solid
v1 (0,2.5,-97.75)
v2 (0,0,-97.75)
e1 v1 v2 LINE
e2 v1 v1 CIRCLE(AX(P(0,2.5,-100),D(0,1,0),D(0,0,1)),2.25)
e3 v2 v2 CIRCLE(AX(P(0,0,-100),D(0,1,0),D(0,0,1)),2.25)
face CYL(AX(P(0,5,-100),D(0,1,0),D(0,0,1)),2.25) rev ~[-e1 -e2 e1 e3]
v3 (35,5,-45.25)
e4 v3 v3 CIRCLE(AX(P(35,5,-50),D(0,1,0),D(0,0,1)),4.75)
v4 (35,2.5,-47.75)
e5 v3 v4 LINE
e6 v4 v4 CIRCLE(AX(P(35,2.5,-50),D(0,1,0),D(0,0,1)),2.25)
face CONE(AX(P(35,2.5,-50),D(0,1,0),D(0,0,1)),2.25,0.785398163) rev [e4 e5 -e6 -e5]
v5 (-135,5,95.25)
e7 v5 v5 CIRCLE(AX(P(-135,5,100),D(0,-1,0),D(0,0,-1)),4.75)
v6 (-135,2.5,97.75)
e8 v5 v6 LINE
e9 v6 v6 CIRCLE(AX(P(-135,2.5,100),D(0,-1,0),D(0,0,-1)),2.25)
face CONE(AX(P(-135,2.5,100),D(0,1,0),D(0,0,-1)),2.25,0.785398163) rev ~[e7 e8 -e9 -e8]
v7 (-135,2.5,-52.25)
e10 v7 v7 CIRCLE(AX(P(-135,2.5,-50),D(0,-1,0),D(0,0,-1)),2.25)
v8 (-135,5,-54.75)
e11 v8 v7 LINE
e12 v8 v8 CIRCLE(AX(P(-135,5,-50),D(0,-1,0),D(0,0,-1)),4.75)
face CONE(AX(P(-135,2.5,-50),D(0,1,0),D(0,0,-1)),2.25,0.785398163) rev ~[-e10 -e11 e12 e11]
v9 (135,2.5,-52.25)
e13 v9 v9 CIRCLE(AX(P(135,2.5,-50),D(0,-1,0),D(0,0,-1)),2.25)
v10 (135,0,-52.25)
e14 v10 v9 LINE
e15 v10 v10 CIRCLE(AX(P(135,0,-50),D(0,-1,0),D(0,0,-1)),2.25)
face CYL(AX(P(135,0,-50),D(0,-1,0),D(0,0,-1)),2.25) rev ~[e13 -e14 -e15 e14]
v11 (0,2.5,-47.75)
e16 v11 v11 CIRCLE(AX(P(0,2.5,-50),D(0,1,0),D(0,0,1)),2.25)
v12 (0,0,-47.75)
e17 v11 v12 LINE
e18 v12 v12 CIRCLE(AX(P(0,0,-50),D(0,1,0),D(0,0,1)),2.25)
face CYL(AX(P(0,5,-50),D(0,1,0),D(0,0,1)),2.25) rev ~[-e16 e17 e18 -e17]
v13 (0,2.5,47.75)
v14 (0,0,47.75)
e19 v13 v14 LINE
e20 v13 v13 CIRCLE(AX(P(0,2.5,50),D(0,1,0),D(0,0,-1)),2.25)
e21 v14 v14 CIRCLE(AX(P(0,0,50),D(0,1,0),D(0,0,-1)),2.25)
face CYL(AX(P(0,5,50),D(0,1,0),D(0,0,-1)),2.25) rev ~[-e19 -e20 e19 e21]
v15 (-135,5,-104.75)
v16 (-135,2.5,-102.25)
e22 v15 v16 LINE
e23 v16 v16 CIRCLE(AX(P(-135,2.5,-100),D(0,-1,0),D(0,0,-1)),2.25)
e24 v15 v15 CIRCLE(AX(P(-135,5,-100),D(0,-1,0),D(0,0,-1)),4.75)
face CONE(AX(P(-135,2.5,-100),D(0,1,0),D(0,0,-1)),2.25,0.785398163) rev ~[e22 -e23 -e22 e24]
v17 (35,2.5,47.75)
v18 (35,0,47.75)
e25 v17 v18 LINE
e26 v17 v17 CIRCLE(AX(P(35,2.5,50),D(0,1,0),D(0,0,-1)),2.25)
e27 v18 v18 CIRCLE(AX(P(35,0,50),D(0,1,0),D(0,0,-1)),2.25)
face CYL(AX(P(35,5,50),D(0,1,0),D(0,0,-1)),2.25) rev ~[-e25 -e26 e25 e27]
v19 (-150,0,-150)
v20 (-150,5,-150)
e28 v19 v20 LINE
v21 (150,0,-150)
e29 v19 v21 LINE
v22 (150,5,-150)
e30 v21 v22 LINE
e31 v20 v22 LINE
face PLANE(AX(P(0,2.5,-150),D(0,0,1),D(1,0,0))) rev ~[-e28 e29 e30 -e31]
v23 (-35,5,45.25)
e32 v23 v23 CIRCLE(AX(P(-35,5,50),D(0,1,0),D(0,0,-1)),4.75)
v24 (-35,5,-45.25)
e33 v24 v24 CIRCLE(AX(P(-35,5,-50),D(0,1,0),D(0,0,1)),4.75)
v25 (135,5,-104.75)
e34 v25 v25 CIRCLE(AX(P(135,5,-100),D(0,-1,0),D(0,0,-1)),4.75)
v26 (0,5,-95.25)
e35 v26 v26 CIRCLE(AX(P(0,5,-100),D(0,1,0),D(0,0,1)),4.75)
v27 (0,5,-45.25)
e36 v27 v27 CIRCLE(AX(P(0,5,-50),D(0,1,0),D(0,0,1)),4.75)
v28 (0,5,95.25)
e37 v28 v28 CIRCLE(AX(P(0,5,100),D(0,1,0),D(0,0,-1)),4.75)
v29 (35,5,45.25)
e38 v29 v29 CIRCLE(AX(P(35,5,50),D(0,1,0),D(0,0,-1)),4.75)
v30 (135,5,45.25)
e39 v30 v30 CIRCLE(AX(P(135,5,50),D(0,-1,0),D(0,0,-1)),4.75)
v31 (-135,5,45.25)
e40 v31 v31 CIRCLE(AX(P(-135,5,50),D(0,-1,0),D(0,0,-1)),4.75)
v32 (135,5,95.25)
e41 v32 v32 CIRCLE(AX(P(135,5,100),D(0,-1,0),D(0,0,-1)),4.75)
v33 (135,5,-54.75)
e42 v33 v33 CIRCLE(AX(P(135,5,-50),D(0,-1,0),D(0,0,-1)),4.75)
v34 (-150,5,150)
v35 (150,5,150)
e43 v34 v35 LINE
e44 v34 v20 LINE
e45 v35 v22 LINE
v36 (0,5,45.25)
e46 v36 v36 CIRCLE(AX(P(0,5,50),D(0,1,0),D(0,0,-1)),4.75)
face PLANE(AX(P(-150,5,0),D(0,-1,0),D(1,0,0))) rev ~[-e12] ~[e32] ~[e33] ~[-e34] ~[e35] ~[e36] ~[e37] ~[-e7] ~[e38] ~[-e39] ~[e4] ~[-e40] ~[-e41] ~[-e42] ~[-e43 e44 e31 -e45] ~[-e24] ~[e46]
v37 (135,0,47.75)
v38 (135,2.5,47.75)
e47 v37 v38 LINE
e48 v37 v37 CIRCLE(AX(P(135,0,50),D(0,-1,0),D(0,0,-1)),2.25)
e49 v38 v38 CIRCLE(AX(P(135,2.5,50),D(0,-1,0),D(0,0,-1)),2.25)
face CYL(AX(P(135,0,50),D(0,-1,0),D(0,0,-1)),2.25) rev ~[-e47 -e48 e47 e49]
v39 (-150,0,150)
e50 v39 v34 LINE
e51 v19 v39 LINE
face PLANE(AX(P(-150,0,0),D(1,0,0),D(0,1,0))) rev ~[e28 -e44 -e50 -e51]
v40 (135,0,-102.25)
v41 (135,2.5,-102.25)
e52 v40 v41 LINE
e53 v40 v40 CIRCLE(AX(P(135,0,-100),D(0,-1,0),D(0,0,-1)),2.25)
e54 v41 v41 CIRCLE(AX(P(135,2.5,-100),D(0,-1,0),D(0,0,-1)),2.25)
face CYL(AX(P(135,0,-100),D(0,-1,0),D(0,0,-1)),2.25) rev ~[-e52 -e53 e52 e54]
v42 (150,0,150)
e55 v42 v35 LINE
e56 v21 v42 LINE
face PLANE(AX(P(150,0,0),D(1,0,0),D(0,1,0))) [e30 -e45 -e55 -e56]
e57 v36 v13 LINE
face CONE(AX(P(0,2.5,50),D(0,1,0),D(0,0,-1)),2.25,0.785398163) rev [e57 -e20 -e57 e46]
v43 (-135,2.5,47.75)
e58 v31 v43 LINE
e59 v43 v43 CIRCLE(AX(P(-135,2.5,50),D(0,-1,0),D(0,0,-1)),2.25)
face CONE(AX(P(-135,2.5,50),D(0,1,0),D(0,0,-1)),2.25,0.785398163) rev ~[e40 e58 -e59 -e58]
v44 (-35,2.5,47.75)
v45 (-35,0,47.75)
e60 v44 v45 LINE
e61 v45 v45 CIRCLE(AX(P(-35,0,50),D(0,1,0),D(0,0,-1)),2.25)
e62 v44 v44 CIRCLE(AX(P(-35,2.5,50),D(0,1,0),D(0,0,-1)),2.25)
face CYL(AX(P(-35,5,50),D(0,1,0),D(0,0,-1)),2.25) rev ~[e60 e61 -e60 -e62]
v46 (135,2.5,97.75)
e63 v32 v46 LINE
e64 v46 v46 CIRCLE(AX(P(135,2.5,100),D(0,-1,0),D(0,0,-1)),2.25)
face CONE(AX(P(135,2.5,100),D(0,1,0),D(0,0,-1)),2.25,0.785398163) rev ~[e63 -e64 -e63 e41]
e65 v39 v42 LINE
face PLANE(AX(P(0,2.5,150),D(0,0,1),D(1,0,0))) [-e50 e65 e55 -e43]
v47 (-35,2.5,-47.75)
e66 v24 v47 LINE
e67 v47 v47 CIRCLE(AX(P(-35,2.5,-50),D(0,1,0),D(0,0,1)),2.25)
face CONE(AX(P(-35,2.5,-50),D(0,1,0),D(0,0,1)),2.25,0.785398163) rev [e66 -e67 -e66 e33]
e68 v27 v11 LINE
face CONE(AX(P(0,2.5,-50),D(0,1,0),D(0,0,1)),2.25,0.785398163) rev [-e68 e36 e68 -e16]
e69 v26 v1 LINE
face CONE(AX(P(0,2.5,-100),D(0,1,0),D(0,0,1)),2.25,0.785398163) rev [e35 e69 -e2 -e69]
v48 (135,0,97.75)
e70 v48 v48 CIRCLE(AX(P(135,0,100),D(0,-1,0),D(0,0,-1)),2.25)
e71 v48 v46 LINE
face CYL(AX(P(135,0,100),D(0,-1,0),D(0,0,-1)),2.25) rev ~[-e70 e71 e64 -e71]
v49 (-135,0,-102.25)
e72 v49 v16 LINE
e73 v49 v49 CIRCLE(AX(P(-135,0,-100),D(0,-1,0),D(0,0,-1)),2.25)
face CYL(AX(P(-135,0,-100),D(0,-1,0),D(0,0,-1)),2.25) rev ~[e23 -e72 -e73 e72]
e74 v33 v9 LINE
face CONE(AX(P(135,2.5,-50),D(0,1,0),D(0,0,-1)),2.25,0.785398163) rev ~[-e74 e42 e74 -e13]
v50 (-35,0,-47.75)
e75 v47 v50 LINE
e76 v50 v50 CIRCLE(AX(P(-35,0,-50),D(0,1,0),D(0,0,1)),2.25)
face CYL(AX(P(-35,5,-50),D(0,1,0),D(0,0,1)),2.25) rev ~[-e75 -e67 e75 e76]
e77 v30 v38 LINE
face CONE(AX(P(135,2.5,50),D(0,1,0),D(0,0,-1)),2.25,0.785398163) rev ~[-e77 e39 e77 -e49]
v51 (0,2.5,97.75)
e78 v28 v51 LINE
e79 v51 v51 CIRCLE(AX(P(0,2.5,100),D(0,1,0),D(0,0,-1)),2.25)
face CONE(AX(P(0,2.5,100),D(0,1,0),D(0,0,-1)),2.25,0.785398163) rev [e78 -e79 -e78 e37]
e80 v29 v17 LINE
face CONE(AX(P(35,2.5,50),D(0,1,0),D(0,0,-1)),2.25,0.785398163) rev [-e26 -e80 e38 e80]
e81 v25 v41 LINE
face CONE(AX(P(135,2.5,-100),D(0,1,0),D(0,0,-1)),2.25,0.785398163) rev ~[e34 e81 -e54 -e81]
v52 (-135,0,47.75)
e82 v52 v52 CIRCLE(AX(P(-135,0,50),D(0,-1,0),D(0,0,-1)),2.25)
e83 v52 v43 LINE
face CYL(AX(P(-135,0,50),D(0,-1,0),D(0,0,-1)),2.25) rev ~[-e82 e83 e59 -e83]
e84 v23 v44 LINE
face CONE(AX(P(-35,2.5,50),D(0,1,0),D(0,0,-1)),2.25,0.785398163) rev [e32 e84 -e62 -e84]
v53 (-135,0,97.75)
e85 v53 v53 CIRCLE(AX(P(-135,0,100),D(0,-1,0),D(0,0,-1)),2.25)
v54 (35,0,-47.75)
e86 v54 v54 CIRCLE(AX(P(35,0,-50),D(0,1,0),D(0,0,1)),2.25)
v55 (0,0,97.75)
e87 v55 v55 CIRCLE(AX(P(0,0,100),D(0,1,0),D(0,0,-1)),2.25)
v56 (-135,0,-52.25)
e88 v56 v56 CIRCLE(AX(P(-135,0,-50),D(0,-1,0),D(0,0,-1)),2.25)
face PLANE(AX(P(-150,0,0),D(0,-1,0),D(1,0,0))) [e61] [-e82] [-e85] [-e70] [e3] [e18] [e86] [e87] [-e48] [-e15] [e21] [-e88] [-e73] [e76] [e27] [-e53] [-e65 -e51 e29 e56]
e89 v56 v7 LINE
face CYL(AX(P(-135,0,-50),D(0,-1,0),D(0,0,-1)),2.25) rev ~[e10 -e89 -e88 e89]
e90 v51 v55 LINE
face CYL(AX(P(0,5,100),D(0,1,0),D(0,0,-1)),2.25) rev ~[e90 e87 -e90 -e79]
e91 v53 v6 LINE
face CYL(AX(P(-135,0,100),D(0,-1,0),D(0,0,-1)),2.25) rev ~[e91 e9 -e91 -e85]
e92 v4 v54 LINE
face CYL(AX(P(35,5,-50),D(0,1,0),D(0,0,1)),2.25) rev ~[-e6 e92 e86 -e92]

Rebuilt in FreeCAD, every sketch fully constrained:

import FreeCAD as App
import Part
import Sketcher
Q = App.Units.Quantity


def edges_at(feature, points):
    """Names of the edges that pass closest to the given points."""
    edges = feature.Shape.Edges
    near = lambda p: min(range(len(edges)), key=lambda i: edges[i].distToShape(Part.Vertex(*p))[0])
    return sorted({f"Edge{near(p) + 1}" for p in points})

doc = App.newDocument("Part")
body = doc.addObject("PartDesign::Body", "Body")

# Sketch on XY plane
sketch1 = body.newObject("Sketcher::SketchObject", "Sketch")
sketch1.AttachmentSupport = (doc.getObject("XY_Plane"), [""])
sketch1.MapMode = "FlatFace"
sketch1.addGeometry([
    Part.LineSegment(App.Vector(-150, 5, 0), App.Vector(-150, 0, 0)),
    Part.LineSegment(App.Vector(-150, 0, 0), App.Vector(150, 0, 0)),
    Part.LineSegment(App.Vector(150, 0, 0), App.Vector(150, 5, 0)),
    Part.LineSegment(App.Vector(150, 5, 0), App.Vector(-150, 5, 0)),
], False)
sketch1.addConstraint([
    Sketcher.Constraint("Coincident", 0, 2, 1, 1),
    Sketcher.Constraint("Coincident", 1, 2, 2, 1),
    Sketcher.Constraint("Coincident", 2, 2, 3, 1),
    Sketcher.Constraint("Coincident", 3, 2, 0, 1),
    Sketcher.Constraint("Vertical", 0),
    Sketcher.Constraint("Horizontal", 1),
    Sketcher.Constraint("Vertical", 2),
    Sketcher.Constraint("Horizontal", 3),
    Sketcher.Constraint("Symmetric", 0, 2, 1, 2, -1, 1),
    Sketcher.Constraint("DistanceX", 1, 1, 1, 2, Q("300 mm")),
    Sketcher.Constraint("DistanceY", 0, 2, 0, 1, Q("5 mm")),
])
pad1 = body.newObject("PartDesign::Pad", "Pad")
pad1.Profile = sketch1
pad1.Length = 300
pad1.Midplane = True

# Sketch on XZ plane
sketch2 = body.newObject("Sketcher::SketchObject", "Sketch001")
sketch2.AttachmentSupport = (doc.getObject("XZ_Plane"), [""])
sketch2.MapMode = "FlatFace"
sketch2.AttachmentOffset = App.Placement(App.Vector(0, 0, -5), App.Rotation())
sketch2.addGeometry([
    Part.Circle(App.Vector(0, -100, 0), App.Vector(0, 0, 1), 2.25),  # 0
    Part.Circle(App.Vector(0, -50, 0), App.Vector(0, 0, 1), 2.25),  # 1
    Part.Circle(App.Vector(-35, -50, 0), App.Vector(0, 0, 1), 2.25),  # 2
    Part.Circle(App.Vector(35, -50, 0), App.Vector(0, 0, 1), 2.25),  # 3
    Part.Circle(App.Vector(0, 100, 0), App.Vector(0, 0, 1), 2.25),  # 4
    Part.Circle(App.Vector(-35, 50, 0), App.Vector(0, 0, 1), 2.25),  # 5
    Part.Circle(App.Vector(0, 50, 0), App.Vector(0, 0, 1), 2.25),  # 6
    Part.Circle(App.Vector(35, 50, 0), App.Vector(0, 0, 1), 2.25),  # 7
], False)
sketch2.addConstraint([
    Sketcher.Constraint("Equal", 0, 1),
    Sketcher.Constraint("Equal", 1, 2),
    Sketcher.Constraint("Equal", 2, 3),
    Sketcher.Constraint("Equal", 3, 4),
    Sketcher.Constraint("Equal", 4, 5),
    Sketcher.Constraint("Equal", 5, 6),
    Sketcher.Constraint("Equal", 6, 7),
    Sketcher.Constraint("Symmetric", 0, 3, 4, 3, -1, 1),
    Sketcher.Constraint("Symmetric", 3, 3, 5, 3, -1, 1),
    Sketcher.Constraint("Symmetric", 1, 3, 6, 3, -1, 1),
    Sketcher.Constraint("Symmetric", 2, 3, 7, 3, -1, 1),
    Sketcher.Constraint("Symmetric", 2, 3, 3, 3, -2),
    Sketcher.Constraint("PointOnObject", 0, 3, -2),
    Sketcher.Constraint("PointOnObject", 1, 3, -2),
    Sketcher.Constraint("Horizontal", 1, 3, 2, 3),
    Sketcher.Constraint("Diameter", 0, Q("4.5 mm")),
    Sketcher.Constraint("DistanceY", 0, 3, -1, 1, Q("100 mm")),
    Sketcher.Constraint("DistanceY", 1, 3, -1, 1, Q("50 mm")),
    Sketcher.Constraint("DistanceX", 2, 3, -1, 1, Q("35 mm")),
])
pocket1 = body.newObject("PartDesign::Pocket", "Pocket")
pocket1.Profile = sketch2
pocket1.Type = "ThroughAll"
pocket1.Reversed = True

# Sketch on XZ plane
sketch3 = body.newObject("Sketcher::SketchObject", "Sketch002")
sketch3.AttachmentSupport = (doc.getObject("XZ_Plane"), [""])
sketch3.MapMode = "FlatFace"
sketch3.addGeometry([
    Part.Circle(App.Vector(135, 100, 0), App.Vector(0, 0, 1), 2.25),  # 0
    Part.Circle(App.Vector(135, 50, 0), App.Vector(0, 0, 1), 2.25),  # 1
    Part.Circle(App.Vector(135, -50, 0), App.Vector(0, 0, 1), 2.25),  # 2
    Part.Circle(App.Vector(135, -100, 0), App.Vector(0, 0, 1), 2.25),  # 3
    Part.Circle(App.Vector(-135, 100, 0), App.Vector(0, 0, 1), 2.25),  # 4
    Part.Circle(App.Vector(-135, -50, 0), App.Vector(0, 0, 1), 2.25),  # 5
    Part.Circle(App.Vector(-135, -100, 0), App.Vector(0, 0, 1), 2.25),  # 6
    Part.Circle(App.Vector(-135, 50, 0), App.Vector(0, 0, 1), 2.25),  # 7
], False)
sketch3.addConstraint([
    Sketcher.Constraint("Equal", 0, 1),
    Sketcher.Constraint("Equal", 1, 2),
    Sketcher.Constraint("Equal", 2, 3),
    Sketcher.Constraint("Equal", 3, 4),
    Sketcher.Constraint("Equal", 4, 5),
    Sketcher.Constraint("Equal", 5, 6),
    Sketcher.Constraint("Equal", 6, 7),
    Sketcher.Constraint("Symmetric", 3, 3, 4, 3, -1, 1),
    Sketcher.Constraint("Symmetric", 1, 3, 5, 3, -1, 1),
    Sketcher.Constraint("Symmetric", 0, 3, 6, 3, -1, 1),
    Sketcher.Constraint("Symmetric", 2, 3, 7, 3, -1, 1),
    Sketcher.Constraint("Symmetric", 0, 3, 4, 3, -2),
    Sketcher.Constraint("Symmetric", 2, 3, 5, 3, -2),
    Sketcher.Constraint("Vertical", 0, 3, 1, 3),
    Sketcher.Constraint("Diameter", 0, Q("4.5 mm")),
    Sketcher.Constraint("DistanceX", -1, 1, 0, 3, Q("135 mm")),
    Sketcher.Constraint("DistanceY", -1, 1, 0, 3, Q("100 mm")),
    Sketcher.Constraint("DistanceY", -1, 1, 1, 3, Q("50 mm")),
])
pocket2 = body.newObject("PartDesign::Pocket", "Pocket001")
pocket2.Profile = sketch3
pocket2.Type = "ThroughAll"
doc.recompute()

chamfer = body.newObject("PartDesign::Chamfer", "Chamfer")
chamfer.Base = (pocket2, edges_at(pocket2, [
    (0, 5, -102.25),
    (35, 5, 52.25),
    (0, 5, 52.25),
    (-35, 5, 52.25),
    (0, 5, -52.25),
    (-35, 5, -52.25),
    (35, 5, -52.25),
    (0, 5, 102.25),
    (-135, 5, 102.25),
    (135, 5, -97.75),
    (135, 5, -47.75),
    (135, 5, 52.25),
    (-135, 5, -47.75),
    (-135, 5, -97.75),
    (-135, 5, 52.25),
    (135, 5, 102.25),
]))
chamfer.Size = 2.5

doc.recompute()
